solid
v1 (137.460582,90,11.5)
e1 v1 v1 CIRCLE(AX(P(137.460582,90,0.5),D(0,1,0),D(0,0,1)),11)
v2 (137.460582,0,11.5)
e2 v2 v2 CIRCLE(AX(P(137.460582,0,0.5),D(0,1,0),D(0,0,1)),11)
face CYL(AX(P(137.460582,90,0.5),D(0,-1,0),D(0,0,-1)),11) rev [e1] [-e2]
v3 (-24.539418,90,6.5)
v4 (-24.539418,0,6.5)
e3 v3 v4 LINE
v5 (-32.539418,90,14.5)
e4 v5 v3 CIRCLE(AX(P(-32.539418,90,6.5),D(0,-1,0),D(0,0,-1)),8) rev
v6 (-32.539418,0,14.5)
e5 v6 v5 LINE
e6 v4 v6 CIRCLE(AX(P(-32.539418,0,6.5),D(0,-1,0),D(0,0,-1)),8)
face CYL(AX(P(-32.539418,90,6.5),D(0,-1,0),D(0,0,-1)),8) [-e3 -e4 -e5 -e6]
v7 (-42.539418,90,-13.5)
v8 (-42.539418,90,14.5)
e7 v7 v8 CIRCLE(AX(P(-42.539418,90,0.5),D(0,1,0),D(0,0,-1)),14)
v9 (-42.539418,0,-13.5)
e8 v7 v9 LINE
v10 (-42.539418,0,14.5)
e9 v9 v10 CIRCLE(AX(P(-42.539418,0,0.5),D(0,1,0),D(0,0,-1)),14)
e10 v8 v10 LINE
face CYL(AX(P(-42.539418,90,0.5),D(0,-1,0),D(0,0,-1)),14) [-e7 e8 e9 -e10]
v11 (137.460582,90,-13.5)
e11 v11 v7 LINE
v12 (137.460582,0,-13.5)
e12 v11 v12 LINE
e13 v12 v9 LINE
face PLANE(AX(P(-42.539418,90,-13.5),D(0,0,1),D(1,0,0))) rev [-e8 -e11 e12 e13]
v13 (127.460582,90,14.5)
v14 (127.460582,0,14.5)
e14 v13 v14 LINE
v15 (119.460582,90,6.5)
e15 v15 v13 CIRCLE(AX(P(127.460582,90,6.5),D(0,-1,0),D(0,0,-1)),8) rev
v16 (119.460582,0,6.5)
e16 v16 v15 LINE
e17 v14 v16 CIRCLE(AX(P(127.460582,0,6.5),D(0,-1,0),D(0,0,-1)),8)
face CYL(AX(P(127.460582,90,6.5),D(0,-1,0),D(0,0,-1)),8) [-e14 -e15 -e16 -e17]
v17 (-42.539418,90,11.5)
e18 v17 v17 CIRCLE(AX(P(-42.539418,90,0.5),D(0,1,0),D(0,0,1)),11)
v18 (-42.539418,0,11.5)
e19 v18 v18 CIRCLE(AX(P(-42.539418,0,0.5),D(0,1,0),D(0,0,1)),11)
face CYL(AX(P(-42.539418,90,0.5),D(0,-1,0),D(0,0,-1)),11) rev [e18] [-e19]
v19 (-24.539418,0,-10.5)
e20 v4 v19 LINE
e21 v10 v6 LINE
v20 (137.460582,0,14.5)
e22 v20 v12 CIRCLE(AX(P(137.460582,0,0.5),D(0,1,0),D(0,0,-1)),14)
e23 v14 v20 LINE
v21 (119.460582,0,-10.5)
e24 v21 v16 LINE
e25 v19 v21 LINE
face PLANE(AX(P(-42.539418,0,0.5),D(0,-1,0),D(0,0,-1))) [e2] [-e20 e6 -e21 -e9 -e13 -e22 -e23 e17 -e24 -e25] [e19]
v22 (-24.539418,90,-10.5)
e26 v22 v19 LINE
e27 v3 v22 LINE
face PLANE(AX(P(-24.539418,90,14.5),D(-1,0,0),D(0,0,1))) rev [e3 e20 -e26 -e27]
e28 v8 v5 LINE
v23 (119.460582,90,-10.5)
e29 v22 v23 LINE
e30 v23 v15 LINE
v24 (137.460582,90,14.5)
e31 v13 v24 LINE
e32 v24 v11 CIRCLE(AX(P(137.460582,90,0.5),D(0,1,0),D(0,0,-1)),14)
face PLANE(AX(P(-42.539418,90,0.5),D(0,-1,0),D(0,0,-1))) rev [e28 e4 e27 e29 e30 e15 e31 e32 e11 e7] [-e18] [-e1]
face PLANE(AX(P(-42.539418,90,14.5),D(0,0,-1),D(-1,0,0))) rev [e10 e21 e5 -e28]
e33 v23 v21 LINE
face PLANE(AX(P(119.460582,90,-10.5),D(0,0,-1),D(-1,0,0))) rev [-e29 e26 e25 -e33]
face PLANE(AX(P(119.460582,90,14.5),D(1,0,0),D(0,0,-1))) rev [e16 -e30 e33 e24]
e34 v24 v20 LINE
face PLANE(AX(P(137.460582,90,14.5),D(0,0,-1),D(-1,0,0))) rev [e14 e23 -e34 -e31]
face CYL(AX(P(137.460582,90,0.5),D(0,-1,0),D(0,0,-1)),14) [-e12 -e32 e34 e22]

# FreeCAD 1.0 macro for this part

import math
import FreeCAD as App
import Part
import Sketcher

V = App.Vector


def edges_at(feature, points):
    """Names of the edges that pass closest to the given points."""
    edges = feature.Shape.Edges
    near = lambda p: min(range(len(edges)), key=lambda i: edges[i].distToShape(Part.Vertex(*p))[0])
    return sorted({f"Edge{near(p) + 1}" for p in points})

doc = App.newDocument("Part")
body = doc.addObject("PartDesign::Body", "Body")

# Sketch on XZ plane
sketch1 = body.newObject("Sketcher::SketchObject", "Sketch")
sketch1.AttachmentSupport = (doc.getObject("XZ_Plane"), [""])
sketch1.MapMode = "FlatFace"
sketch1.addGeometry(Part.LineSegment(V(119.460582, 14.5, 0), V(137.460582, 14.5, 0)), False)
sketch1.addGeometry(Part.ArcOfCircle(Part.Circle(V(137.460582, 0.5, 0), V(0, 0, 1), 14), math.radians(-90), math.radians(90)), False)
sketch1.addGeometry(Part.LineSegment(V(137.460582, -13.5, 0), V(-42.539418, -13.5, 0)), False)
sketch1.addGeometry(Part.ArcOfCircle(Part.Circle(V(-42.539418, 0.5, 0), V(0, 0, 1), 14), math.radians(90), math.radians(270)), False)
sketch1.addGeometry(Part.LineSegment(V(-42.539418, 14.5, 0), V(-24.539418, 14.5, 0)), False)
sketch1.addGeometry(Part.LineSegment(V(-24.539418, 14.5, 0), V(-24.539418, -10.5, 0)), False)
sketch1.addGeometry(Part.LineSegment(V(-24.539418, -10.5, 0), V(119.460582, -10.5, 0)), False)
sketch1.addGeometry(Part.LineSegment(V(119.460582, -10.5, 0), V(119.460582, 14.5, 0)), False)
sketch1.addGeometry(Part.Circle(V(137.460582, 0.5, 0), V(0, 0, 1), 11), False)
sketch1.addGeometry(Part.Circle(V(-42.539418, 0.5, 0), V(0, 0, 1), 11), False)
sketch1.addConstraint(Sketcher.Constraint("Tangent", 0, 2, 1, 2))
sketch1.addConstraint(Sketcher.Constraint("Tangent", 1, 1, 2, 1))
sketch1.addConstraint(Sketcher.Constraint("Tangent", 2, 2, 3, 2))
sketch1.addConstraint(Sketcher.Constraint("Tangent", 3, 1, 4, 1))
sketch1.addConstraint(Sketcher.Constraint("Coincident", 4, 2, 5, 1))
sketch1.addConstraint(Sketcher.Constraint("Coincident", 5, 2, 6, 1))
sketch1.addConstraint(Sketcher.Constraint("Coincident", 6, 2, 7, 1))
sketch1.addConstraint(Sketcher.Constraint("Coincident", 7, 2, 0, 1))
sketch1.addConstraint(Sketcher.Constraint("Horizontal", 0))
sketch1.addConstraint(Sketcher.Constraint("Horizontal", 2))
sketch1.addConstraint(Sketcher.Constraint("Horizontal", 4))
sketch1.addConstraint(Sketcher.Constraint("Vertical", 5))
sketch1.addConstraint(Sketcher.Constraint("Horizontal", 6))
sketch1.addConstraint(Sketcher.Constraint("Vertical", 7))
sketch1.addConstraint(Sketcher.Constraint("Coincident", 8, 3, 1, 3))
sketch1.addConstraint(Sketcher.Constraint("Coincident", 9, 3, 3, 3))
sketch1.addConstraint(Sketcher.Constraint("Equal", 1, 3))
sketch1.addConstraint(Sketcher.Constraint("Equal", 8, 9))
sketch1.addConstraint(Sketcher.Constraint("Equal", 0, 4))
sketch1.addConstraint(Sketcher.Constraint("Diameter", 8, 22.0))
sketch1.addConstraint(Sketcher.Constraint("Radius", 1, 14.0))
sketch1.addConstraint(Sketcher.Constraint("DistanceX", 0, 1, 0, 2, 18.0))
sketch1.addConstraint(Sketcher.Constraint("DistanceX", 2, 2, 2, 1, 180.0))
sketch1.addConstraint(Sketcher.Constraint("DistanceY", 5, 2, 5, 1, 25.0))
sketch1.addConstraint(Sketcher.Constraint("DistanceY", -1, 1, 1, 3, 0.5))
sketch1.addConstraint(Sketcher.Constraint("DistanceX", -1, 1, 1, 3, 137.460582))
pad1 = body.newObject("PartDesign::Pad", "Pad")
pad1.Profile = sketch1
pad1.Length = 90
pad1.Reversed = True
doc.recompute()

fillet = body.newObject("PartDesign::Fillet", "Fillet")
fillet.Base = (pad1, edges_at(pad1, [(119.461, 45, 14.5), (-24.539, 45, 14.5)]))
fillet.Radius = 8

doc.recompute()
